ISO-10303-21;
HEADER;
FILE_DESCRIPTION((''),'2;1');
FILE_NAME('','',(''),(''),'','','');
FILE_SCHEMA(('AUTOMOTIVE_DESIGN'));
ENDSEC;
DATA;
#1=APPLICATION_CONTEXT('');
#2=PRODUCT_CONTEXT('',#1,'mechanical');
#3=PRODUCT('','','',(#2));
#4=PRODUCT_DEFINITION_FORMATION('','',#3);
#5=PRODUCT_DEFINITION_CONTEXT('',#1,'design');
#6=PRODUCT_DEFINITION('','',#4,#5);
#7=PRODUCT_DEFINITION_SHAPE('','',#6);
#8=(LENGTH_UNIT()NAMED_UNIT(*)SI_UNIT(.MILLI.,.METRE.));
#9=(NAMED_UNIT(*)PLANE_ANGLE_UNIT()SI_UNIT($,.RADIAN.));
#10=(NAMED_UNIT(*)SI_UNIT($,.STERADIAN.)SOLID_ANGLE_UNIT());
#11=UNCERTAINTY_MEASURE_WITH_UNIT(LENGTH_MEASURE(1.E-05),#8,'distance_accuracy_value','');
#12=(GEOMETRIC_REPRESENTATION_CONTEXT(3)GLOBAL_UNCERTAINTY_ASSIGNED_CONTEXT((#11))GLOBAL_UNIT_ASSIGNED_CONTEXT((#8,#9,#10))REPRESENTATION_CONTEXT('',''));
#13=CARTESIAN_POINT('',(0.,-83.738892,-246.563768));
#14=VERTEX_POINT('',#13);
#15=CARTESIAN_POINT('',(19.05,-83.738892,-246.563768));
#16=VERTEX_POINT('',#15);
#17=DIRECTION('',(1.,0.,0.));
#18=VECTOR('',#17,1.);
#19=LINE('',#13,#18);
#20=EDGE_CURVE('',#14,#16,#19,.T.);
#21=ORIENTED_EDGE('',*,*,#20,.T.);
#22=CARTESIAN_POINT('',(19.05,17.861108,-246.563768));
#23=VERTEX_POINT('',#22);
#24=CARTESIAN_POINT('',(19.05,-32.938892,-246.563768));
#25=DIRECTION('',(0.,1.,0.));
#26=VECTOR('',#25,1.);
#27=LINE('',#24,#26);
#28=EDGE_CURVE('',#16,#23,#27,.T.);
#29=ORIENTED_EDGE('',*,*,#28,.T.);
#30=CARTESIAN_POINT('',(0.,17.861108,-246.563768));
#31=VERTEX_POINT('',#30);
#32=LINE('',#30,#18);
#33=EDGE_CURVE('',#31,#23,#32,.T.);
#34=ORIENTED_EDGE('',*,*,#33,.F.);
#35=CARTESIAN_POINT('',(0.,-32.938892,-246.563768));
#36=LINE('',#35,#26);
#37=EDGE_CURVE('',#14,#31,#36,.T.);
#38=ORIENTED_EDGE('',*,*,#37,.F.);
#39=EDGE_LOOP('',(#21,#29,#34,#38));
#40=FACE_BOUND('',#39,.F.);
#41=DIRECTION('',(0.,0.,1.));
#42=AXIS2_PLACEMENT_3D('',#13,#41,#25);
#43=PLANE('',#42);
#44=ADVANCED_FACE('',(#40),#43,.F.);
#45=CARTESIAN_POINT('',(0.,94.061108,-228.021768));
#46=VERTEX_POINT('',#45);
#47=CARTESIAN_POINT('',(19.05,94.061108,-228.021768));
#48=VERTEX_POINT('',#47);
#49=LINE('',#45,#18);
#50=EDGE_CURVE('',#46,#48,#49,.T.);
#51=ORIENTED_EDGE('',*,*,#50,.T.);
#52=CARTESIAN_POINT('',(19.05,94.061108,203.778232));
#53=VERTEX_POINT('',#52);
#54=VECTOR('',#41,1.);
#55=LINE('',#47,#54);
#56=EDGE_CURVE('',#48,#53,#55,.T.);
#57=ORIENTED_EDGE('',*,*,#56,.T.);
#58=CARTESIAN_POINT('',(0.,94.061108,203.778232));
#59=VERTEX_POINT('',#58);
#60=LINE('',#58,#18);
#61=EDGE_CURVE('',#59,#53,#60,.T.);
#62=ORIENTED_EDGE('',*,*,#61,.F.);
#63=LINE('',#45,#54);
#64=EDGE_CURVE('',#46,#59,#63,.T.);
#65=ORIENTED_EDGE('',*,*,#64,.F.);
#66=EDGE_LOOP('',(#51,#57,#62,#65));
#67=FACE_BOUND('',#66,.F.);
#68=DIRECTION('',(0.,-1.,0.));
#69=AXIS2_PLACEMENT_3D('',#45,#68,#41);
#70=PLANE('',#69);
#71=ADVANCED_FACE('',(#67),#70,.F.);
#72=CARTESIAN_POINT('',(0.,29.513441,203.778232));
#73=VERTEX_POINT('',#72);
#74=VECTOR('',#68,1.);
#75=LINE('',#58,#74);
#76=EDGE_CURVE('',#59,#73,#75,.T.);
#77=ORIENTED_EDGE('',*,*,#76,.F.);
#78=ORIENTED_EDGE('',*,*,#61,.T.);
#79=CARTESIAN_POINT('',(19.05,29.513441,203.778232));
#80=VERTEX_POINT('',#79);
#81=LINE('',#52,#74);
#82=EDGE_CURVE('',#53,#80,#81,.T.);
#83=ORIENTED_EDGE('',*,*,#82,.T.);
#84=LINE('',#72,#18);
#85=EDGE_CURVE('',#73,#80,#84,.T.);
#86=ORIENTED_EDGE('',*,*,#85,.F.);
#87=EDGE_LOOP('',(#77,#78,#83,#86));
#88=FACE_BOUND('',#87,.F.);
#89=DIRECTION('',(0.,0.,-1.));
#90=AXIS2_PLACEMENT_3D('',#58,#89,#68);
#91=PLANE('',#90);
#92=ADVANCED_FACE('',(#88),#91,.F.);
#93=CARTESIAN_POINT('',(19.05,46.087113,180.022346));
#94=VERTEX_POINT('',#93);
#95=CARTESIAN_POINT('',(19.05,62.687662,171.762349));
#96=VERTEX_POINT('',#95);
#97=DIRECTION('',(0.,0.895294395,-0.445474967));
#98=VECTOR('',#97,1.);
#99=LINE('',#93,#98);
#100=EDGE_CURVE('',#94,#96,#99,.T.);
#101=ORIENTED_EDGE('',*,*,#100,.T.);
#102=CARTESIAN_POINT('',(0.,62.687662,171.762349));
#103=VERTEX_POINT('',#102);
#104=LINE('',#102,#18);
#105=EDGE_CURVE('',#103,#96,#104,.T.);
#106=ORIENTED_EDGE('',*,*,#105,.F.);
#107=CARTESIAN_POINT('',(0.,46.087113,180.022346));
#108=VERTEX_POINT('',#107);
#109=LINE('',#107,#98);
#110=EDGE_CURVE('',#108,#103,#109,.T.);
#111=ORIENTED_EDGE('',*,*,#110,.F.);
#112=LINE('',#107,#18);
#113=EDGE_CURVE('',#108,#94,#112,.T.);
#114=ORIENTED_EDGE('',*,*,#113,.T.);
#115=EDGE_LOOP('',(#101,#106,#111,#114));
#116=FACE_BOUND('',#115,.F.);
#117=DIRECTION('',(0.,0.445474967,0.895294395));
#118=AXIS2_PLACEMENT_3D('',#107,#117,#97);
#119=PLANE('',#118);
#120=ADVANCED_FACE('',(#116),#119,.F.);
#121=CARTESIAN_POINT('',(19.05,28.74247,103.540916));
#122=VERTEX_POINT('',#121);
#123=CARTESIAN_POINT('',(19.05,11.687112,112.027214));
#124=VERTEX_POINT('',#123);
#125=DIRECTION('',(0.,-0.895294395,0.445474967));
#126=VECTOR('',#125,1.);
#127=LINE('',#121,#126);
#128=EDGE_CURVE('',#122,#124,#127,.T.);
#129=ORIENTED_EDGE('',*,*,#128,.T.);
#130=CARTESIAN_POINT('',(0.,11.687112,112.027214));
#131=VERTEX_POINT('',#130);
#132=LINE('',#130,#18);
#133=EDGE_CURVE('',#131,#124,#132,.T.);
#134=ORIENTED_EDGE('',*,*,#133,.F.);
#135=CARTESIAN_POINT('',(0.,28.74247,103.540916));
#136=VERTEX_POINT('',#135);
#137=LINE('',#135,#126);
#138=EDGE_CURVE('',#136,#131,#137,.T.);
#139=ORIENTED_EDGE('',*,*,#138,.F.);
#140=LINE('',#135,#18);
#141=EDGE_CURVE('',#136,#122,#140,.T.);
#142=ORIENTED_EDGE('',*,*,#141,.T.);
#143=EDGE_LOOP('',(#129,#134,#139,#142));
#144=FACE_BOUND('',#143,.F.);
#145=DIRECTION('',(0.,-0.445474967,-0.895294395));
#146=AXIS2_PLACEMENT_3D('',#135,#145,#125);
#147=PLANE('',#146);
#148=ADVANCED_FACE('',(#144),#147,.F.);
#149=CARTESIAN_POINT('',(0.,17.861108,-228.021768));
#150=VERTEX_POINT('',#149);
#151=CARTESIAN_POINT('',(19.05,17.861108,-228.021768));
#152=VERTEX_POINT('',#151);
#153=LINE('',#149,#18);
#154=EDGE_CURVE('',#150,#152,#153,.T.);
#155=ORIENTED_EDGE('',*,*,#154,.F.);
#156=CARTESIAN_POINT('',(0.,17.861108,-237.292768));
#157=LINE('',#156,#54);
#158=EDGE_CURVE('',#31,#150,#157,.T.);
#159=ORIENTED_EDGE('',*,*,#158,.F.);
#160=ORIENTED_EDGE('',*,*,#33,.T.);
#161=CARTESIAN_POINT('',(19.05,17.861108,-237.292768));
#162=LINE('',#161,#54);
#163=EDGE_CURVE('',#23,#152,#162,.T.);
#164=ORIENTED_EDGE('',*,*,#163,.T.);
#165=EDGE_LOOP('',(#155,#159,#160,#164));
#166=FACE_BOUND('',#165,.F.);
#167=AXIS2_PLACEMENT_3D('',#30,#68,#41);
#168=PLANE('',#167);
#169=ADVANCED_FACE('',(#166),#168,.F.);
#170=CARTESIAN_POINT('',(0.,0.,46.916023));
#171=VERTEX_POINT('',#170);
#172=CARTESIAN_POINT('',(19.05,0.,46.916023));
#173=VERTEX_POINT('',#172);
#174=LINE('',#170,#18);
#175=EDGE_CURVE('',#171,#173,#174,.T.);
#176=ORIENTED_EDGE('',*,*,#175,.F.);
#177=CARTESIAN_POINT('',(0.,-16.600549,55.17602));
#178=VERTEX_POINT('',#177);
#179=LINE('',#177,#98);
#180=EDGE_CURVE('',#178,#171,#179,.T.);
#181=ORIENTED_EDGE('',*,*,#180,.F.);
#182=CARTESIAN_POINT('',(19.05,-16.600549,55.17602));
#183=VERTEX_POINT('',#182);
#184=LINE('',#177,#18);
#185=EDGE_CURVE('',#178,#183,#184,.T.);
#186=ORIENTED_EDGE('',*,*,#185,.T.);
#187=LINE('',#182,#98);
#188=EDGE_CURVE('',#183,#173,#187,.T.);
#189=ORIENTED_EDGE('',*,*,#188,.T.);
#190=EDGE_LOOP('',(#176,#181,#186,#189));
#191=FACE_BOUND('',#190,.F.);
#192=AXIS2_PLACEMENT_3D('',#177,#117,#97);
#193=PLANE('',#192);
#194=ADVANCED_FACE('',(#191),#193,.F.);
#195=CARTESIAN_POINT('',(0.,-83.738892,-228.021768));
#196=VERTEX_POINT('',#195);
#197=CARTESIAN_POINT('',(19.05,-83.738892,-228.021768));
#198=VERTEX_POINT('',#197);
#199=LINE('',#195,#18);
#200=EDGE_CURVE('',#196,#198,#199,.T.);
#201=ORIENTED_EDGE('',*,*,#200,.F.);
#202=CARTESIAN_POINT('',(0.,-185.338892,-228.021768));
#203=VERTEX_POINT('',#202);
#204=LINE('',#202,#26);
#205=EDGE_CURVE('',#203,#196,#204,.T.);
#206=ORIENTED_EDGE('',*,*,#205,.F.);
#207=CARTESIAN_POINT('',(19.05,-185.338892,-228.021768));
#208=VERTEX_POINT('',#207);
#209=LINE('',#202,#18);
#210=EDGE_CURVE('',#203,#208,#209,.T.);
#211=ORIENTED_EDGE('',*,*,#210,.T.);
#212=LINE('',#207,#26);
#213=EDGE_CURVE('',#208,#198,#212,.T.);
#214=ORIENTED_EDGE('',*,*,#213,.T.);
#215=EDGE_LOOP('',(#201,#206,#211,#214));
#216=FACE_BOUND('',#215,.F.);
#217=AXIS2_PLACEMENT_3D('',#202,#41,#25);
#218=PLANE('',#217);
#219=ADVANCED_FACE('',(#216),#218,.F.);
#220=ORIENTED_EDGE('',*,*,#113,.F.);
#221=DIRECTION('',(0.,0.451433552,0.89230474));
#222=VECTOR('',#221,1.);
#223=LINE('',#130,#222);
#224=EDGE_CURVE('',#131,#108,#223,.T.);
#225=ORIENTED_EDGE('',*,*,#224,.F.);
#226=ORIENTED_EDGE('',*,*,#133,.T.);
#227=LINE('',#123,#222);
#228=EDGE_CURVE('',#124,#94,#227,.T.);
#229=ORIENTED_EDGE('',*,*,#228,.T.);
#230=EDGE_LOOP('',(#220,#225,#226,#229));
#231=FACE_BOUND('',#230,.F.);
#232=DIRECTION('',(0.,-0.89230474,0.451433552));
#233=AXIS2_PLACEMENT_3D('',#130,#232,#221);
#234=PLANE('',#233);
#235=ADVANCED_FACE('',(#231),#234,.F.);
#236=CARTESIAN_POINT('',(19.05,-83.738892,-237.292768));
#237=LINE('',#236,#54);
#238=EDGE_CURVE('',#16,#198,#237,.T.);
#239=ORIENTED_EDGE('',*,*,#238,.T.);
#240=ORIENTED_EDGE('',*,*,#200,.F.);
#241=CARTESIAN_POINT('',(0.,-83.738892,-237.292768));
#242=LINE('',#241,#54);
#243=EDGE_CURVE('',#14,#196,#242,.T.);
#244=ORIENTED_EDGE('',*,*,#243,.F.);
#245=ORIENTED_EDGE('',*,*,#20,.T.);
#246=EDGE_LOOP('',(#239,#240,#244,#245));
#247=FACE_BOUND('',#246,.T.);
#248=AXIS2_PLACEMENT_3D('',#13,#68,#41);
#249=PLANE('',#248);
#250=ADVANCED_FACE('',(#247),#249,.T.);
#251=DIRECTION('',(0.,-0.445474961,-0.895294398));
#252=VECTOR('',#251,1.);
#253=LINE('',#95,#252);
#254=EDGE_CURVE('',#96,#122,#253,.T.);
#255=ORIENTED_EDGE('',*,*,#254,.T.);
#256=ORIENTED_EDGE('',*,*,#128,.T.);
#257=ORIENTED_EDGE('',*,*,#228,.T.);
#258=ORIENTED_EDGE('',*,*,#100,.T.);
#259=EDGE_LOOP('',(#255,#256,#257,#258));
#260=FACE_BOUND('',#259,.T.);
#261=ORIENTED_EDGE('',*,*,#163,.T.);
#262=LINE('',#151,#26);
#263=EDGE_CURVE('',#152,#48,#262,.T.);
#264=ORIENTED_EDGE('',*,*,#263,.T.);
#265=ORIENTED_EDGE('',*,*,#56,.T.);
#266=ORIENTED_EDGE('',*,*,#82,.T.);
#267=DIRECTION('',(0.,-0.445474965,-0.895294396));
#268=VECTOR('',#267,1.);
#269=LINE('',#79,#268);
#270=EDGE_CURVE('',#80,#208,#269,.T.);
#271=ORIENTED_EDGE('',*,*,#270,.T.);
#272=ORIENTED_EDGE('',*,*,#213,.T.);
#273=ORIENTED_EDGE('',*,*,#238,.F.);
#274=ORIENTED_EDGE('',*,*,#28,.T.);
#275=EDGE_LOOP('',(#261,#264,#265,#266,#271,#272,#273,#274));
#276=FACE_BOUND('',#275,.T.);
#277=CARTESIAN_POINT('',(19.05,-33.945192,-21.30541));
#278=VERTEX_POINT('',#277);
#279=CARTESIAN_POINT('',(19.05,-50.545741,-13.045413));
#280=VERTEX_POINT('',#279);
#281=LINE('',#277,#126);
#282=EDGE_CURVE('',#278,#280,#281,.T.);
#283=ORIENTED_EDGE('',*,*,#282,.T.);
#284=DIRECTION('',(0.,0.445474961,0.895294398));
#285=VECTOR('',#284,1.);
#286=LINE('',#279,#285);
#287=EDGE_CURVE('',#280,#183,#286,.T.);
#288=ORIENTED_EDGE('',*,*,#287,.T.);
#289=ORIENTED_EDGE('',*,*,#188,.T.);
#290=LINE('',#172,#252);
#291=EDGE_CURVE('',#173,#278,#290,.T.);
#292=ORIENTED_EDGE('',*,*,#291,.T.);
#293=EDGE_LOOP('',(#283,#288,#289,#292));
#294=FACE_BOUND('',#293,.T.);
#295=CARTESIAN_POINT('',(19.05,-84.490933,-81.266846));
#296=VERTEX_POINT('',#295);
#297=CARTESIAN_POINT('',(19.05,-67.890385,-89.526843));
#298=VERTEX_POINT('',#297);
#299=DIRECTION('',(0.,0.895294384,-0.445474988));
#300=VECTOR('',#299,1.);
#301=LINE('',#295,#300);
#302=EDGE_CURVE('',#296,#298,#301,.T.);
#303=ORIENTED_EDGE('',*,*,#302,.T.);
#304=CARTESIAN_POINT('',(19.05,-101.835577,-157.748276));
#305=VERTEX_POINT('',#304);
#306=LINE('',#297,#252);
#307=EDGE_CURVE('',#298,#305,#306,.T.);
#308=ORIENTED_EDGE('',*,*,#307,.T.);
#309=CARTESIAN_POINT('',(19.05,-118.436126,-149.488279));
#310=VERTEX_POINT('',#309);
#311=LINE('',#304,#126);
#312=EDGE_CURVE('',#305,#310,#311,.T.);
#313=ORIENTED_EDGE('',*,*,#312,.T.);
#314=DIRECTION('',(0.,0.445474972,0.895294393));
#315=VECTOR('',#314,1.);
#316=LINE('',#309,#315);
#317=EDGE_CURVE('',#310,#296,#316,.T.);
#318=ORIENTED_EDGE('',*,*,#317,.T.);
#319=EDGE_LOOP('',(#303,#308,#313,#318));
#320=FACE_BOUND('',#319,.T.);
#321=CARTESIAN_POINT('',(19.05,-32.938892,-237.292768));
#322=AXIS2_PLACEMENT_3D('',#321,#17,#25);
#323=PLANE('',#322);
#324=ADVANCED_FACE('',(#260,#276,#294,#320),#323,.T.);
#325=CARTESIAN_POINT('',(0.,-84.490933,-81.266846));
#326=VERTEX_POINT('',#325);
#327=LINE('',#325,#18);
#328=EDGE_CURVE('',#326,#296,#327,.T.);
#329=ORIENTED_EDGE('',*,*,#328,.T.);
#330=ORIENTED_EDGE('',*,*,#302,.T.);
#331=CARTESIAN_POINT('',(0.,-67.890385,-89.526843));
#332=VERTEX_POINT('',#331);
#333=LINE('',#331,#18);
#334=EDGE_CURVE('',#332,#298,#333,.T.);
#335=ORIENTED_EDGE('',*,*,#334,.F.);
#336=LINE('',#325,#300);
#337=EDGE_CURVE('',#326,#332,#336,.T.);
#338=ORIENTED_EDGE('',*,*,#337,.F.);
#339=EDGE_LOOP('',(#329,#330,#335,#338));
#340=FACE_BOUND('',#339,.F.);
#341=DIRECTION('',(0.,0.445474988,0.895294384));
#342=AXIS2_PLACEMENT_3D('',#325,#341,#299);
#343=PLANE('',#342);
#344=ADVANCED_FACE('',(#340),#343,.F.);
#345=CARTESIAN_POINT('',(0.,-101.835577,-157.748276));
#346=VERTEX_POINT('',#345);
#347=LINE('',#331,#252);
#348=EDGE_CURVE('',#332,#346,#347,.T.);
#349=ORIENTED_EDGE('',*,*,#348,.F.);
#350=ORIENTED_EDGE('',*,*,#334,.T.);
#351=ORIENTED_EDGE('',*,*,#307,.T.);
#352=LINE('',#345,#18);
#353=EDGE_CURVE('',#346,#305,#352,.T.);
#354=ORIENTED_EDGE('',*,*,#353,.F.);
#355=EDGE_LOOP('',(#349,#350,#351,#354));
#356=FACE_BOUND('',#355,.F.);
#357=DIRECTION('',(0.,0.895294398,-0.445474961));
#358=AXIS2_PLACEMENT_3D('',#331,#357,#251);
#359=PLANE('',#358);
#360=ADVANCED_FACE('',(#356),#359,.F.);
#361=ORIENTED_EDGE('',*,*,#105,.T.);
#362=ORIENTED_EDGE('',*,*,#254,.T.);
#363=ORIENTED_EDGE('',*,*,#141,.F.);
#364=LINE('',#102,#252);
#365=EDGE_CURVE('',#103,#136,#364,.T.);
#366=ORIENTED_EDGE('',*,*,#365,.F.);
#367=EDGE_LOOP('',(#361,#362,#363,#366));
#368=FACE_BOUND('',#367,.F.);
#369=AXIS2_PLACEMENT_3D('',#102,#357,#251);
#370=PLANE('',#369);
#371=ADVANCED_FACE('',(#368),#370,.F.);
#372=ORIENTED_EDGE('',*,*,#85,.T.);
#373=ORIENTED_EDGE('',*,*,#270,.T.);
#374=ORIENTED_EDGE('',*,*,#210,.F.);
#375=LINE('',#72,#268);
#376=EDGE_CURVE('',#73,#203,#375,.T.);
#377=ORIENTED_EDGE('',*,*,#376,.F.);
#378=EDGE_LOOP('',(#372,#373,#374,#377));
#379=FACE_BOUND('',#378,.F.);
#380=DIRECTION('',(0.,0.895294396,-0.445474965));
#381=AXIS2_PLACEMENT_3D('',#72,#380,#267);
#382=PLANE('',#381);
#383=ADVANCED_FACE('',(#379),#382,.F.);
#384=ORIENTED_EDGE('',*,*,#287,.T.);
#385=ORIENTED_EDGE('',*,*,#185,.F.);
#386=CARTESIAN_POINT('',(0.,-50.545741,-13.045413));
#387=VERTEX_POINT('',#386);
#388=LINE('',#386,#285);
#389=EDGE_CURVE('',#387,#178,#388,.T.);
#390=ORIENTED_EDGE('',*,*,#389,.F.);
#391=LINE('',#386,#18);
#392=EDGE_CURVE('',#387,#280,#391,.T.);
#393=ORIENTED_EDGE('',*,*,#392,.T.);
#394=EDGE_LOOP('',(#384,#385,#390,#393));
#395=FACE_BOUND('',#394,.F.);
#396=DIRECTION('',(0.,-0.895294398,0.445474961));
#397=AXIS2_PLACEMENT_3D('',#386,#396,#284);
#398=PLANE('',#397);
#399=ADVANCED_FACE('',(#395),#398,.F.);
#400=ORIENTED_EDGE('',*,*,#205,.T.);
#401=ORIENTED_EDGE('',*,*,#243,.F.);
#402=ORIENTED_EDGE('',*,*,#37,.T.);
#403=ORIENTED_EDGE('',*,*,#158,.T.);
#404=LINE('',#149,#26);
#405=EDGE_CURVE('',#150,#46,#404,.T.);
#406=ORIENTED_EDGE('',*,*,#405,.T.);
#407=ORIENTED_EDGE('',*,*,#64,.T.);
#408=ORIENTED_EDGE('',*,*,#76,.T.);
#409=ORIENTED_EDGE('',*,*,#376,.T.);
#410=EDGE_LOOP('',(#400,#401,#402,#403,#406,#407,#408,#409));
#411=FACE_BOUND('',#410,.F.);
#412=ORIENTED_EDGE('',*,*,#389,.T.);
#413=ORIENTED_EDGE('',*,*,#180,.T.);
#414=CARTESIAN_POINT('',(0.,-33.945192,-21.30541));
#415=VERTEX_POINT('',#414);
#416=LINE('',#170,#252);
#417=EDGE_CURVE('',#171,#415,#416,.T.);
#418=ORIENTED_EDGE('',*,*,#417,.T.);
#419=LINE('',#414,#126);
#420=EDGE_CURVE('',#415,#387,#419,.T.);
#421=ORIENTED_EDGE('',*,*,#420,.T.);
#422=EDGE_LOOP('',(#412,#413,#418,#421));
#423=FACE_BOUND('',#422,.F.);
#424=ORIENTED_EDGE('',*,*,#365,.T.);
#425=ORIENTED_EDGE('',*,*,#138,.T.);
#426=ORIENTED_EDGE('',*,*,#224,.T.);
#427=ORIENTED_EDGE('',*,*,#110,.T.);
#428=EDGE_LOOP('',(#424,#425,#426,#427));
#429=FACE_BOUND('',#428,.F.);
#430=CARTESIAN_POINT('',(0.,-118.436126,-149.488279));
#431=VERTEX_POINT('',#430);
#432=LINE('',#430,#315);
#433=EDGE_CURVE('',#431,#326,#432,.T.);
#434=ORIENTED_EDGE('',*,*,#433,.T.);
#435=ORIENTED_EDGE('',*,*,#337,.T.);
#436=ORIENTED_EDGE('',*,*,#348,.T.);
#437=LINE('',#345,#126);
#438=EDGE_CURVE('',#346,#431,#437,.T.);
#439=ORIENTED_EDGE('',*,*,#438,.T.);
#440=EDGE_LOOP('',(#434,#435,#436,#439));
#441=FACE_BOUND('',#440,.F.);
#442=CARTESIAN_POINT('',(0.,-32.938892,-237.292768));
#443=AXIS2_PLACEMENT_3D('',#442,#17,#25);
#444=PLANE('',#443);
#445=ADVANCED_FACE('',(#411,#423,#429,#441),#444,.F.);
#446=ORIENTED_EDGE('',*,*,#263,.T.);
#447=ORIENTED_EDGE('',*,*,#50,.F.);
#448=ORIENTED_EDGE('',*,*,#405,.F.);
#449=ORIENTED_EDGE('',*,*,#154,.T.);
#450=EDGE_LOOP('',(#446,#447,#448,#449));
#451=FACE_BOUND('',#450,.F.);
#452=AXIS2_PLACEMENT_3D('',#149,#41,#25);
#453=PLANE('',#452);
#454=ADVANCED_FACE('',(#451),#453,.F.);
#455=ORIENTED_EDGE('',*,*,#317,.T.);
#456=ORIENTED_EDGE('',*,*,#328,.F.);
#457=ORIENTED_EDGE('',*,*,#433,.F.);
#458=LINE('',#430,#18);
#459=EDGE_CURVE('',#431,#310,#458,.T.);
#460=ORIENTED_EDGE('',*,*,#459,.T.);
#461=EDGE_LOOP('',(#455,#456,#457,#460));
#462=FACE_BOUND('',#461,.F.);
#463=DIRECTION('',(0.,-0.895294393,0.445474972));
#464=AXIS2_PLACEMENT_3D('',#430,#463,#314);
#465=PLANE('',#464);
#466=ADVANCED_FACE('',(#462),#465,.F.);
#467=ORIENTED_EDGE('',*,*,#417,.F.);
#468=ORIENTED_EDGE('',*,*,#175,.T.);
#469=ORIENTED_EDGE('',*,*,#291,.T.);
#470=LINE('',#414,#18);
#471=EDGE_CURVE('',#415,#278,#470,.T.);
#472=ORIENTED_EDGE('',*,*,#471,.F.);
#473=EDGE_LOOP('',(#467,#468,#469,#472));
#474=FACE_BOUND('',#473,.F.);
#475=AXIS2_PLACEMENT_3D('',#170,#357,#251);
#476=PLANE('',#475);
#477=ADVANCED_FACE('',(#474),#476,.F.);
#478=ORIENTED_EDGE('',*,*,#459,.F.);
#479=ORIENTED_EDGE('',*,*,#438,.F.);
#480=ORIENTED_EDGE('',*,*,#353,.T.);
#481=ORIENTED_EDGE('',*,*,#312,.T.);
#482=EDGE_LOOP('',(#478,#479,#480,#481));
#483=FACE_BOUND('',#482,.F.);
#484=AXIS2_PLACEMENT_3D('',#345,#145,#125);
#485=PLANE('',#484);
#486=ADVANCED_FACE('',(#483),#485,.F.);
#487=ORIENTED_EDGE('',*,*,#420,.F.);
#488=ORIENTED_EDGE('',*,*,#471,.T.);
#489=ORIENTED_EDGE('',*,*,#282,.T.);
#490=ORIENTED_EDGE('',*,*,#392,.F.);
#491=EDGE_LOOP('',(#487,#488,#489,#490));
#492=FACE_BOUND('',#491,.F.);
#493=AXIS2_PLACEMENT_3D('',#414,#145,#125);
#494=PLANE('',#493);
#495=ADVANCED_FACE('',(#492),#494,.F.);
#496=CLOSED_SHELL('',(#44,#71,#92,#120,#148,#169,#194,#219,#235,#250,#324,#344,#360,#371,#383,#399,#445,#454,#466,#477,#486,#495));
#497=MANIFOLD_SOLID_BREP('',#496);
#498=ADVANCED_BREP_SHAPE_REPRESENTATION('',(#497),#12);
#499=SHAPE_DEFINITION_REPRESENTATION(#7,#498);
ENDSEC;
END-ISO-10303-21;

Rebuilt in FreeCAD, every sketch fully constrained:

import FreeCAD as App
import Part
import Sketcher

V = App.Vector
Q = App.Units.Quantity


def add_polygon(sketch, points):
    """Adds a closed chain of lines whose ends are joined by coincident constraints."""
    first, n = sketch.GeometryCount, len(points)
    for a, b in zip(points, points[1:] + points[:1]):
        sketch.addGeometry(Part.LineSegment(App.Vector(*a, 0), App.Vector(*b, 0)), False)
    for i in range(n):
        sketch.addConstraint(Sketcher.Constraint("Coincident", first + i, 2, first + (i + 1) % n, 1))

doc = App.newDocument("Part")
body = doc.addObject("PartDesign::Body", "Body")

sketch1 = body.newObject("Sketcher::SketchObject", "Sketch")
sketch1.AttachmentSupport = (doc.getObject("YZ_Plane"), [""])
sketch1.MapMode = "FlatFace"
add_polygon(sketch1, [(-83.738892, -228.021768), (-83.738892, -246.563768), (17.861108, -246.563768), (17.861108, -228.021768), (94.061108, -228.021768), (94.061108, 203.778232), (29.513441, 203.778232), (-185.338892, -228.021768)])
add_polygon(sketch1, [(-118.436126, -149.488279), (-84.490933, -81.266846), (-67.890385, -89.526843), (-101.835577, -157.748276)])
add_polygon(sketch1, [(0, 46.916023), (-33.945192, -21.30541), (-50.545741, -13.045413), (-16.600549, 55.17602)])
add_polygon(sketch1, [(62.687662, 171.762349), (28.74247, 103.540916), (11.687112, 112.027214), (46.087113, 180.022346)])
sketch1.addConstraint([
    Sketcher.Constraint("Vertical", 0),
    Sketcher.Constraint("Horizontal", 1),
    Sketcher.Constraint("Vertical", 2),
    Sketcher.Constraint("Horizontal", 3),
    Sketcher.Constraint("Vertical", 4),
    Sketcher.Constraint("Horizontal", 5),
    Sketcher.Constraint("Horizontal", 7),
    Sketcher.Constraint("PointOnObject", 15, 2, -2),
    Sketcher.Constraint("Parallel", 6, 8),
    Sketcher.Constraint("Perpendicular", 8, 9),
    Sketcher.Constraint("Perpendicular", 9, 10),
    Sketcher.Constraint("Perpendicular", 10, 11),
    Sketcher.Constraint("Perpendicular", 11, 12),
    Sketcher.Constraint("Perpendicular", 12, 13),
    Sketcher.Constraint("Perpendicular", 13, 14),
    Sketcher.Constraint("Perpendicular", 14, 15),
    Sketcher.Constraint("Perpendicular", 15, 16),
    Sketcher.Constraint("Perpendicular", 16, 17),
    Sketcher.Constraint("Parallel", 17, 19),
    Sketcher.Constraint("Horizontal", 3, 2, 6, 2),
    Sketcher.Constraint("Equal", 1, 7),
    Sketcher.Constraint("Equal", 10, 12),
    Sketcher.Constraint("Equal", 11, 13),
    Sketcher.Constraint("Equal", 14, 16),
    Sketcher.Constraint("Equal", 15, 19),
    Sketcher.Constraint("DistanceX", 1, 1, 1, 2, Q("4 in")),
    Sketcher.Constraint("DistanceX", 3, 1, 3, 2, Q("3 in")),
    Sketcher.Constraint("DistanceY", 4, 1, 4, 2, Q("17 in")),
    Sketcher.Constraint("Distance", 8, Q("3 in")),
    Sketcher.Constraint("DistanceY", 0, 2, 0, 1, Q("0.73 in")),
    Sketcher.Constraint("Distance", 9, Q("0.73 in")),
    Sketcher.Constraint("Distance", 17, Q("0.75 in")),
    Sketcher.Constraint("DistanceX", 16, 2, 4, 2, Q("2.5715999 in")),
    Sketcher.Constraint("DistanceX", 7, 2, 12, 2, Q("49.7937 mm")),
    Sketcher.Constraint("DistanceY", 16, 2, 17, 2, Q("8.486298 mm")),
    Sketcher.Constraint("DistanceY", 0, 2, -1, 1, Q("246.563768 mm")),
    Sketcher.Constraint("DistanceY", 11, 2, -1, 1, Q("149.488279 mm")),
    Sketcher.Constraint("DistanceY", 12, 2, -1, 1, Q("21.30541 mm")),
    Sketcher.Constraint("DistanceY", -1, 1, 19, 2, Q("171.762349 mm")),
    Sketcher.Constraint("DistanceX", 8, 2, 7, 2, Q("0.752041 mm")),
])
pad1 = body.newObject("PartDesign::Pad", "Pad")
pad1.Profile = sketch1
pad1.Length = Q("0.75 in")

doc.recompute()
